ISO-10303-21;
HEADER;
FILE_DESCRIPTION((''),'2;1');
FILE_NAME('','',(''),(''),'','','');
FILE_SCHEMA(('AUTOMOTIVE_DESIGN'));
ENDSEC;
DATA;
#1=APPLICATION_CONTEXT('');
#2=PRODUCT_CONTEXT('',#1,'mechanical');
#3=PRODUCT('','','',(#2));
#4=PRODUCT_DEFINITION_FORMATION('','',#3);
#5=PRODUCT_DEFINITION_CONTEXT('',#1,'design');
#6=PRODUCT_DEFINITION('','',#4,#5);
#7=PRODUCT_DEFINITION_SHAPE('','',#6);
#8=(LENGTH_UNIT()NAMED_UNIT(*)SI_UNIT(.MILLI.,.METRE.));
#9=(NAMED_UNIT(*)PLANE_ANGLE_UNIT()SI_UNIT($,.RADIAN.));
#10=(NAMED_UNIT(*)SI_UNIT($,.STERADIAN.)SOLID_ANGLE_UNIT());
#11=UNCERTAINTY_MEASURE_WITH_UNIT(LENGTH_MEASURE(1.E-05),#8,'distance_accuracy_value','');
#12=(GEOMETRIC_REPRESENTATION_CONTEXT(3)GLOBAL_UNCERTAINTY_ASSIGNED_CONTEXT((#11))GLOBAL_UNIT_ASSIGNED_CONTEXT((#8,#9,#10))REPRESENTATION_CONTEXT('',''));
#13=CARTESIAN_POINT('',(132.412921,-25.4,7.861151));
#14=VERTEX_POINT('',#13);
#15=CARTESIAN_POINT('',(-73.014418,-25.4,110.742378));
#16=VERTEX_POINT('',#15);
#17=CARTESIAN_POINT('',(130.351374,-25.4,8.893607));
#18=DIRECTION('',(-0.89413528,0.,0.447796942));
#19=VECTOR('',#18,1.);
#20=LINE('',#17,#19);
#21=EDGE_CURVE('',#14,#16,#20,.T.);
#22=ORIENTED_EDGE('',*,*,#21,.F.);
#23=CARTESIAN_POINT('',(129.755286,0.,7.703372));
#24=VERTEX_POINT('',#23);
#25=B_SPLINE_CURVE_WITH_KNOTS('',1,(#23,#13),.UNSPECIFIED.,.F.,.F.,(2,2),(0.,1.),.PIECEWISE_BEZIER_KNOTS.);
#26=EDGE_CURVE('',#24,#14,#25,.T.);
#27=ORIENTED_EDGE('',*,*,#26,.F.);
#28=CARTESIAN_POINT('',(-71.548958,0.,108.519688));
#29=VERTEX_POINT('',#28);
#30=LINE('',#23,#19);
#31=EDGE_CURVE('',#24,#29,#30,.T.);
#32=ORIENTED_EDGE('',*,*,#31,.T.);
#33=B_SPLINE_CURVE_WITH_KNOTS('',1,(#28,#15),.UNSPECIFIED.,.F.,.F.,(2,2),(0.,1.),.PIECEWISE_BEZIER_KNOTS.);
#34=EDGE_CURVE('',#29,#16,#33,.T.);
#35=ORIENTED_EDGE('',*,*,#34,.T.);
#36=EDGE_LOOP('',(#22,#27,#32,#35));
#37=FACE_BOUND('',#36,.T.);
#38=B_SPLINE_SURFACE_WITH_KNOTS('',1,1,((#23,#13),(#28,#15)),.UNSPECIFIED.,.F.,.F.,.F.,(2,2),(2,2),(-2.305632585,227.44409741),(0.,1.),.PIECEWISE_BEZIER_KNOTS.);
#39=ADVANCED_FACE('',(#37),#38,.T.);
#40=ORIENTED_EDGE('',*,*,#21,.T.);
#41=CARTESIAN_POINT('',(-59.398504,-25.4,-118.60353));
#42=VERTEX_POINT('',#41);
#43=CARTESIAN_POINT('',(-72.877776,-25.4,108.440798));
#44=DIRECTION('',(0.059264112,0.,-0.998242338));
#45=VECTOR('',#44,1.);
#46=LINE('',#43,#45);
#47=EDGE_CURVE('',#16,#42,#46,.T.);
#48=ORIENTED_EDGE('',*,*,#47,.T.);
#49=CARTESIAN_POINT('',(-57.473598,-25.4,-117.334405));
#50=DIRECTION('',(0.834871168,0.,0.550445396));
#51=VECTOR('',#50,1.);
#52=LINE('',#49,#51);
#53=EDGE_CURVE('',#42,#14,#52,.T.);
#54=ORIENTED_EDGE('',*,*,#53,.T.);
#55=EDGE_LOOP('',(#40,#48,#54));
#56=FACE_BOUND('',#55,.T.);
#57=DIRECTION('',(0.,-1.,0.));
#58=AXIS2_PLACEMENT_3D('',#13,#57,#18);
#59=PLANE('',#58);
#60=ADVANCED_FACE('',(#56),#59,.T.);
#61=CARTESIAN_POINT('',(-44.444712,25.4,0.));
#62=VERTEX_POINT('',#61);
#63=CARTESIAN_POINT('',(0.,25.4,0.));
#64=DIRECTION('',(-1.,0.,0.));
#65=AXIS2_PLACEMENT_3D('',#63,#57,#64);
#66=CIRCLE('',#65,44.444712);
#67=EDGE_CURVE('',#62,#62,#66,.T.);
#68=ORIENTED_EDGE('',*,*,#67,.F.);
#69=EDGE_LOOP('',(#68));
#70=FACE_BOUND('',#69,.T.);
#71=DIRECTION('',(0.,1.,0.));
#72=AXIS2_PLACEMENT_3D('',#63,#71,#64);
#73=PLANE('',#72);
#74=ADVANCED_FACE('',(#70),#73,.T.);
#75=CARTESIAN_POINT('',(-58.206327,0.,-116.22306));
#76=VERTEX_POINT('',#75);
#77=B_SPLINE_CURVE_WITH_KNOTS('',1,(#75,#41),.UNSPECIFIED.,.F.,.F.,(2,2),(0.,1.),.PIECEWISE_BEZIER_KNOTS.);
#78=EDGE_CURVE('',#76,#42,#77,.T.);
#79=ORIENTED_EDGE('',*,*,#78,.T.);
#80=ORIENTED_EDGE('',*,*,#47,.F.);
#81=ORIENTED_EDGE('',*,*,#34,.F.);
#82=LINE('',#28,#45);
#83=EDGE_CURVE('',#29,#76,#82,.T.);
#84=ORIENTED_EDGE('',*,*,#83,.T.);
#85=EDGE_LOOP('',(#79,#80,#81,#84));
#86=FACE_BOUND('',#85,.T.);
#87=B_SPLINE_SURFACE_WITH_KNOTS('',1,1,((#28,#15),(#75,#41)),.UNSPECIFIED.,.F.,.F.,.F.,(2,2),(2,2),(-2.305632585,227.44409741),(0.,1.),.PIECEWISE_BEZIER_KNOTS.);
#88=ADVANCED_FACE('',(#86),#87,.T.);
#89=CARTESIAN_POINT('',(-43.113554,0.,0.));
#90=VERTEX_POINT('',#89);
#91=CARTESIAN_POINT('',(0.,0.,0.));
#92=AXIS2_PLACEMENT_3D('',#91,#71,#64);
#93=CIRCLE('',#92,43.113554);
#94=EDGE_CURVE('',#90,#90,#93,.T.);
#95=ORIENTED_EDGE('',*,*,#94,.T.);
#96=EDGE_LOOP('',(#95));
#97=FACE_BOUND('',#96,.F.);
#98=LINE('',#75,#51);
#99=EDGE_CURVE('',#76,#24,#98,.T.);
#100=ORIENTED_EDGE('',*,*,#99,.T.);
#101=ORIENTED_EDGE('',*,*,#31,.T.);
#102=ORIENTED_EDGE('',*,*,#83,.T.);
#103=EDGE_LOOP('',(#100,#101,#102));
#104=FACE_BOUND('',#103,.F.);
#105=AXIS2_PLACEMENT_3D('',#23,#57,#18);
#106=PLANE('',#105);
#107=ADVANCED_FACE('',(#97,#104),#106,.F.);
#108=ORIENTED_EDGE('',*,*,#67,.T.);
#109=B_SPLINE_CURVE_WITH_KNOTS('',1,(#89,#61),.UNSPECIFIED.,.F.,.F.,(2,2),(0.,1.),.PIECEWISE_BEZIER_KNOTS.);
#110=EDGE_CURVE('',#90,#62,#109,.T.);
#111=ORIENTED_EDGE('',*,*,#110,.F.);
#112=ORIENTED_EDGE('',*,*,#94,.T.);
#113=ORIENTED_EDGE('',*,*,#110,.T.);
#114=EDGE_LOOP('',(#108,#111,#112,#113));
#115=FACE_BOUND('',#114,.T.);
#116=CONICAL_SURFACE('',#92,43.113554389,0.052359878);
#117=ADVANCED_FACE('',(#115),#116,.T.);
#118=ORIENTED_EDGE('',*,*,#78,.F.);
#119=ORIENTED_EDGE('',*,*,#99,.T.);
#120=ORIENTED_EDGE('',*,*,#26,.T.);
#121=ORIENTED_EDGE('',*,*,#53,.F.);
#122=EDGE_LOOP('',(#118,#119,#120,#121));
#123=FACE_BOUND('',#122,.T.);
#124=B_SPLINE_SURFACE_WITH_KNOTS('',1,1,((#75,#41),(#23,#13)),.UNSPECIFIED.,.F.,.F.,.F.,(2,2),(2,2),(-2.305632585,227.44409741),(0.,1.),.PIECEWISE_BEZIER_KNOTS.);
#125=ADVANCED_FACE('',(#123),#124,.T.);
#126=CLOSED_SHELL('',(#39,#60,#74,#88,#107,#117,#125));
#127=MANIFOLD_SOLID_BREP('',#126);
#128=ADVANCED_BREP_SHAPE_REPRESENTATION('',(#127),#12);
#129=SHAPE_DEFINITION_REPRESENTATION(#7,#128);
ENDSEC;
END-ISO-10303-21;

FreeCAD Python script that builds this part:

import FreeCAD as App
import Part
import Sketcher
from FreeCAD import Vector
Q = App.Units.Quantity

doc = App.newDocument("Part")
params = doc.addObject("Spreadsheet::Sheet", "Params")
for row, (alias, value) in enumerate([
    ("pad1_length", "1 in"),
    ("pad1_taper", "3 deg"),
    ("pad2_length", "1 in"),
    ("pad2_taper", "3 deg"),
    ("pad3_length", "1 in"),
    ("pad3_taper", "3 deg"),
], start=1):
    params.set(f"A{row}", alias)
    params.set(f"B{row}", "=" + value)
    params.setAlias(f"B{row}", alias)

body = doc.addObject("PartDesign::Body", "Body")

sketch1 = body.newObject("Sketcher::SketchObject", "Sketch")
sketch1.AttachmentSupport = (doc.getObject("XZ_Plane"), [""])
sketch1.MapMode = "FlatFace"
sketch1.addGeometry(Part.LineSegment(Vector(129.755286, 7.703372, 0), Vector(-71.548958, 108.519688, 0)), False)
sketch1.addGeometry(Part.LineSegment(Vector(-71.548958, 108.519688, 0), Vector(-58.206327, -116.22306, 0)), False)
sketch1.addGeometry(Part.LineSegment(Vector(-58.206327, -116.22306, 0), Vector(129.755286, 7.703372, 0)), False)
sketch1.addConstraint(Sketcher.Constraint("Coincident", 0, 2, 1, 1))
sketch1.addConstraint(Sketcher.Constraint("Coincident", 1, 2, 2, 1))
sketch1.addConstraint(Sketcher.Constraint("Coincident", 2, 2, 0, 1))
sketch1.addConstraint(Sketcher.Constraint("Equal", 0, 1))
sketch1.addConstraint(Sketcher.Constraint("Equal", 1, 2))
sketch1.addConstraint(Sketcher.Constraint("DistanceX", 0, 2, -1, 1, Q("71.548958 mm")))
sketch1.addConstraint(Sketcher.Constraint("DistanceY", 1, 2, -1, 1, Q("116.22306 mm")))
sketch1.addConstraint(Sketcher.Constraint("DistanceY", -1, 1, 2, 2, Q("7.703372 mm")))
sketch1.addConstraint(Sketcher.Constraint("DistanceX", 0, 2, 1, 2, Q("13.342631 mm")))
pad1 = body.newObject("PartDesign::Pad", "Pad")
pad1.Profile = sketch1
pad1.setExpression("Length", "Params.pad1_length")
pad1.setExpression("TaperAngle", "Params.pad1_taper")

sketch2 = body.newObject("Sketcher::SketchObject", "Sketch001")
sketch2.AttachmentSupport = (doc.getObject("XZ_Plane"), [""])
sketch2.MapMode = "FlatFace"
sketch2.addGeometry(Part.Circle(Vector(0, 0, 0), Vector(0, 0, 1), 43.113554), False)
sketch2.addConstraint(Sketcher.Constraint("Coincident", 0, 3, -1, 1))
sketch2.addConstraint(Sketcher.Constraint("Diameter", 0, Q("86.227109 mm")))
pad2 = body.newObject("PartDesign::Pad", "Pad001")
pad2.Profile = sketch2
pad2.setExpression("Length", "Params.pad2_length")
pad2.Reversed = True
pad2.setExpression("TaperAngle", "Params.pad2_taper")

sketch3 = body.newObject("Sketcher::SketchObject", "Sketch002")
sketch3.AttachmentSupport = (doc.getObject("XZ_Plane"), [""])
sketch3.MapMode = "FlatFace"
sketch3.addGeometry(Part.Circle(Vector(0, 0, 0), Vector(0, 0, 1), 16.675664), False)
sketch3.addConstraint(Sketcher.Constraint("Coincident", 0, 3, -1, 1))
sketch3.addConstraint(Sketcher.Constraint("Diameter", 0, Q("33.351328 mm")))
pad3 = body.newObject("PartDesign::Pad", "Pad002")
pad3.Profile = sketch3
pad3.setExpression("Length", "Params.pad3_length")
pad3.Reversed = True
pad3.setExpression("TaperAngle", "Params.pad3_taper")

doc.recompute()
